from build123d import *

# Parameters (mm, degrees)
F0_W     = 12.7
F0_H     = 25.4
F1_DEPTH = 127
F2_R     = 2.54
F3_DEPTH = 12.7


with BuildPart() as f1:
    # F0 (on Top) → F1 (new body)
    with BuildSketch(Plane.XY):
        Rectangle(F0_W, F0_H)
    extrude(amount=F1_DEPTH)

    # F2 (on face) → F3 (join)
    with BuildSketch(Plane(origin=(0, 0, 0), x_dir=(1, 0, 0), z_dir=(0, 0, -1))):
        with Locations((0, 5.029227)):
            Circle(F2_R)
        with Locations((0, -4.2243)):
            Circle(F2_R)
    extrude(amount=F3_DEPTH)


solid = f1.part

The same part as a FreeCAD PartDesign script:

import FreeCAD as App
import Part
import Sketcher
from FreeCAD import Vector
Q = App.Units.Quantity


def add_polygon(sketch, points):
    """Adds a closed chain of lines whose ends are joined by coincident constraints."""
    first, n = sketch.GeometryCount, len(points)
    for a, b in zip(points, points[1:] + points[:1]):
        sketch.addGeometry(Part.LineSegment(App.Vector(*a, 0), App.Vector(*b, 0)), False)
    for i in range(n):
        sketch.addConstraint(Sketcher.Constraint("Coincident", first + i, 2, first + (i + 1) % n, 1))

doc = App.newDocument("Part")
body = doc.addObject("PartDesign::Body", "Body")

# Sketch on XY plane
sketch1 = body.newObject("Sketcher::SketchObject", "Sketch")
sketch1.AttachmentSupport = (doc.getObject("XY_Plane"), [""])
sketch1.MapMode = "FlatFace"
add_polygon(sketch1, [(-6, 13), (-6, -13), (6, -13), (6, 13)])  # lines 0-3
sketch1.addConstraint([
    Sketcher.Constraint("Vertical", 0),
    Sketcher.Constraint("Horizontal", 1),
    Sketcher.Constraint("Vertical", 2),
    Sketcher.Constraint("Horizontal", 3),
    Sketcher.Constraint("Symmetric", 0, 2, 2, 2, -1, 1),
    Sketcher.Constraint("DistanceY", 0, 2, 0, 1, Q("1 in")),
    Sketcher.Constraint("DistanceX", 1, 1, 1, 2, Q("0.5 in")),
])
pad1 = body.newObject("PartDesign::Pad", "Pad")
pad1.Profile = sketch1
pad1.Length = Q("5 in")

# Sketch on XY plane
sketch2 = body.newObject("Sketcher::SketchObject", "Sketch001")
sketch2.AttachmentSupport = (doc.getObject("XY_Plane"), [""])
sketch2.MapMode = "FlatFace"
sketch2.addGeometry([
    Part.Circle(Vector(0, -5, 0), Vector(0, 0, 1), 2.5),
    Part.Circle(Vector(0, 4.2, 0), Vector(0, 0, 1), 2.5),
], False)
sketch2.addConstraint([
    Sketcher.Constraint("Equal", 0, 1),
    Sketcher.Constraint("PointOnObject", 0, 3, -2),
    Sketcher.Constraint("PointOnObject", 1, 3, -2),
    Sketcher.Constraint("Diameter", 0, Q("0.2 in")),
    Sketcher.Constraint("DistanceY", -1, 1, 1, 3, 4.2243),
    Sketcher.Constraint("DistanceY", 0, 3, -1, 1, 5.029227),
])
pad2 = body.newObject("PartDesign::Pad", "Pad001")
pad2.Profile = sketch2
pad2.Length = Q("0.5 in")
pad2.Reversed = True

doc.recompute()
